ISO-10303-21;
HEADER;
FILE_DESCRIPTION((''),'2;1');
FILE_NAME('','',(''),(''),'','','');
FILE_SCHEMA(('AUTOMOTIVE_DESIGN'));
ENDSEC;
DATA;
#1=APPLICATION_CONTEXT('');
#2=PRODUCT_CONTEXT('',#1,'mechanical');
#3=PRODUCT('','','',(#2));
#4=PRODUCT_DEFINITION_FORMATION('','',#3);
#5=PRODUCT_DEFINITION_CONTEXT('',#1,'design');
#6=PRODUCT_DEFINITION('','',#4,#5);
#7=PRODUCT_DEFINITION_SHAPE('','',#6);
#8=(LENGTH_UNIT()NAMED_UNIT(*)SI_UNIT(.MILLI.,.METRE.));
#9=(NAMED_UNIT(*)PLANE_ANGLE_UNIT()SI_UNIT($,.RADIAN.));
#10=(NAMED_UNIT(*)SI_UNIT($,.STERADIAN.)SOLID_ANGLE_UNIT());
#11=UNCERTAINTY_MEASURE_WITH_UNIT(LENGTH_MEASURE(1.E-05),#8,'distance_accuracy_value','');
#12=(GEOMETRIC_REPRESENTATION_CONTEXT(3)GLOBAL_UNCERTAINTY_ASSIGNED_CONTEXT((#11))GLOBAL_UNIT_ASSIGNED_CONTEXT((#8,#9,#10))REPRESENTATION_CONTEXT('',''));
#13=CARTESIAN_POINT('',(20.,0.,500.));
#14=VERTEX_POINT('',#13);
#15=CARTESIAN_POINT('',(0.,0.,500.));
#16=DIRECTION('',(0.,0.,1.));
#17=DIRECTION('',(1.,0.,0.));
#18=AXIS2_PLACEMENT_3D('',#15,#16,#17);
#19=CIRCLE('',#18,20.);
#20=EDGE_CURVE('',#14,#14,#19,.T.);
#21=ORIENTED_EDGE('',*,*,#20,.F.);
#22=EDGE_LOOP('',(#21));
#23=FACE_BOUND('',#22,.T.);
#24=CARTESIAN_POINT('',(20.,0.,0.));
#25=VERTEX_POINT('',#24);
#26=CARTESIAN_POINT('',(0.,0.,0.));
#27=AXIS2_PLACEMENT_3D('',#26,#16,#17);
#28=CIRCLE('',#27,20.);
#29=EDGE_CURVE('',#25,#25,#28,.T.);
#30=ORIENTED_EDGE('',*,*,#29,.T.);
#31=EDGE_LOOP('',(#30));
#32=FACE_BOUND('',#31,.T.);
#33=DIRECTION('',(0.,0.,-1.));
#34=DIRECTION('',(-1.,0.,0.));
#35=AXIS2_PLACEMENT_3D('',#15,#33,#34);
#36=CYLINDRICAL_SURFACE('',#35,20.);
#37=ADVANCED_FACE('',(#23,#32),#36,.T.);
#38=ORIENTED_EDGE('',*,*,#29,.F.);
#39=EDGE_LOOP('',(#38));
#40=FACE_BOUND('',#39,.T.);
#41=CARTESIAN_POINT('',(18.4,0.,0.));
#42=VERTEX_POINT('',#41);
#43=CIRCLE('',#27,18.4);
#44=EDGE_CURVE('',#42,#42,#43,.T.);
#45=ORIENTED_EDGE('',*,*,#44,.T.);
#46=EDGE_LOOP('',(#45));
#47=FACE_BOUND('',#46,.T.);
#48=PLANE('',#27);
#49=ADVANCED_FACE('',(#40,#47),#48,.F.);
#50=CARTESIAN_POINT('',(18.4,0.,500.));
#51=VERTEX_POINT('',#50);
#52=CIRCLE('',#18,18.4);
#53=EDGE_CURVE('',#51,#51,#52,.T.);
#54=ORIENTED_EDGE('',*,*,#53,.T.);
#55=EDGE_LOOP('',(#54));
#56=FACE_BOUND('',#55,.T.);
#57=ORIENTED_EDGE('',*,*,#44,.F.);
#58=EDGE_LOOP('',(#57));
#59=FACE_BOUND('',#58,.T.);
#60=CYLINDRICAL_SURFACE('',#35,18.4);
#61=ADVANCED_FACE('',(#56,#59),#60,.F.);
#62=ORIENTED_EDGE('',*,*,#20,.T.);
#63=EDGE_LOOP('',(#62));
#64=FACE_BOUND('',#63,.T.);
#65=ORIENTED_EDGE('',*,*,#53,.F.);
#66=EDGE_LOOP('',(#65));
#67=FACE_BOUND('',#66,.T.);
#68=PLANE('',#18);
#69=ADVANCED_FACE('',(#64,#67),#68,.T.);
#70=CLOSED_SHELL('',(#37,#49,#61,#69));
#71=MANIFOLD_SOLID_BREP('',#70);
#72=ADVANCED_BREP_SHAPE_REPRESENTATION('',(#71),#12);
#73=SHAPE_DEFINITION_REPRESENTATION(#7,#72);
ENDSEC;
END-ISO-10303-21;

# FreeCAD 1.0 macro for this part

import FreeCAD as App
import Part
import Sketcher
from FreeCAD import Vector

doc = App.newDocument("Part")
body = doc.addObject("PartDesign::Body", "Body")

# Sketch on XY plane
sketch1 = body.newObject("Sketcher::SketchObject", "Sketch")
sketch1.AttachmentSupport = (doc.getObject("XY_Plane"), [""])
sketch1.MapMode = "FlatFace"
sketch1.addGeometry([
    Part.Circle(Vector(0, 0, 0), Vector(0, 0, 1), 20),
    Part.Circle(Vector(0, 0, 0), Vector(0, 0, 1), 18),
], False)
sketch1.addConstraint([
    Sketcher.Constraint("Coincident", 0, 3, -1, 1),
    Sketcher.Constraint("Coincident", 1, 3, -1, 1),
    Sketcher.Constraint("Diameter", 0, 40.0),
    Sketcher.Constraint("Diameter", 1, 36.8),
])
pad1 = body.newObject("PartDesign::Pad", "Pad")
pad1.Profile = sketch1
pad1.Length = 500

doc.recompute()
